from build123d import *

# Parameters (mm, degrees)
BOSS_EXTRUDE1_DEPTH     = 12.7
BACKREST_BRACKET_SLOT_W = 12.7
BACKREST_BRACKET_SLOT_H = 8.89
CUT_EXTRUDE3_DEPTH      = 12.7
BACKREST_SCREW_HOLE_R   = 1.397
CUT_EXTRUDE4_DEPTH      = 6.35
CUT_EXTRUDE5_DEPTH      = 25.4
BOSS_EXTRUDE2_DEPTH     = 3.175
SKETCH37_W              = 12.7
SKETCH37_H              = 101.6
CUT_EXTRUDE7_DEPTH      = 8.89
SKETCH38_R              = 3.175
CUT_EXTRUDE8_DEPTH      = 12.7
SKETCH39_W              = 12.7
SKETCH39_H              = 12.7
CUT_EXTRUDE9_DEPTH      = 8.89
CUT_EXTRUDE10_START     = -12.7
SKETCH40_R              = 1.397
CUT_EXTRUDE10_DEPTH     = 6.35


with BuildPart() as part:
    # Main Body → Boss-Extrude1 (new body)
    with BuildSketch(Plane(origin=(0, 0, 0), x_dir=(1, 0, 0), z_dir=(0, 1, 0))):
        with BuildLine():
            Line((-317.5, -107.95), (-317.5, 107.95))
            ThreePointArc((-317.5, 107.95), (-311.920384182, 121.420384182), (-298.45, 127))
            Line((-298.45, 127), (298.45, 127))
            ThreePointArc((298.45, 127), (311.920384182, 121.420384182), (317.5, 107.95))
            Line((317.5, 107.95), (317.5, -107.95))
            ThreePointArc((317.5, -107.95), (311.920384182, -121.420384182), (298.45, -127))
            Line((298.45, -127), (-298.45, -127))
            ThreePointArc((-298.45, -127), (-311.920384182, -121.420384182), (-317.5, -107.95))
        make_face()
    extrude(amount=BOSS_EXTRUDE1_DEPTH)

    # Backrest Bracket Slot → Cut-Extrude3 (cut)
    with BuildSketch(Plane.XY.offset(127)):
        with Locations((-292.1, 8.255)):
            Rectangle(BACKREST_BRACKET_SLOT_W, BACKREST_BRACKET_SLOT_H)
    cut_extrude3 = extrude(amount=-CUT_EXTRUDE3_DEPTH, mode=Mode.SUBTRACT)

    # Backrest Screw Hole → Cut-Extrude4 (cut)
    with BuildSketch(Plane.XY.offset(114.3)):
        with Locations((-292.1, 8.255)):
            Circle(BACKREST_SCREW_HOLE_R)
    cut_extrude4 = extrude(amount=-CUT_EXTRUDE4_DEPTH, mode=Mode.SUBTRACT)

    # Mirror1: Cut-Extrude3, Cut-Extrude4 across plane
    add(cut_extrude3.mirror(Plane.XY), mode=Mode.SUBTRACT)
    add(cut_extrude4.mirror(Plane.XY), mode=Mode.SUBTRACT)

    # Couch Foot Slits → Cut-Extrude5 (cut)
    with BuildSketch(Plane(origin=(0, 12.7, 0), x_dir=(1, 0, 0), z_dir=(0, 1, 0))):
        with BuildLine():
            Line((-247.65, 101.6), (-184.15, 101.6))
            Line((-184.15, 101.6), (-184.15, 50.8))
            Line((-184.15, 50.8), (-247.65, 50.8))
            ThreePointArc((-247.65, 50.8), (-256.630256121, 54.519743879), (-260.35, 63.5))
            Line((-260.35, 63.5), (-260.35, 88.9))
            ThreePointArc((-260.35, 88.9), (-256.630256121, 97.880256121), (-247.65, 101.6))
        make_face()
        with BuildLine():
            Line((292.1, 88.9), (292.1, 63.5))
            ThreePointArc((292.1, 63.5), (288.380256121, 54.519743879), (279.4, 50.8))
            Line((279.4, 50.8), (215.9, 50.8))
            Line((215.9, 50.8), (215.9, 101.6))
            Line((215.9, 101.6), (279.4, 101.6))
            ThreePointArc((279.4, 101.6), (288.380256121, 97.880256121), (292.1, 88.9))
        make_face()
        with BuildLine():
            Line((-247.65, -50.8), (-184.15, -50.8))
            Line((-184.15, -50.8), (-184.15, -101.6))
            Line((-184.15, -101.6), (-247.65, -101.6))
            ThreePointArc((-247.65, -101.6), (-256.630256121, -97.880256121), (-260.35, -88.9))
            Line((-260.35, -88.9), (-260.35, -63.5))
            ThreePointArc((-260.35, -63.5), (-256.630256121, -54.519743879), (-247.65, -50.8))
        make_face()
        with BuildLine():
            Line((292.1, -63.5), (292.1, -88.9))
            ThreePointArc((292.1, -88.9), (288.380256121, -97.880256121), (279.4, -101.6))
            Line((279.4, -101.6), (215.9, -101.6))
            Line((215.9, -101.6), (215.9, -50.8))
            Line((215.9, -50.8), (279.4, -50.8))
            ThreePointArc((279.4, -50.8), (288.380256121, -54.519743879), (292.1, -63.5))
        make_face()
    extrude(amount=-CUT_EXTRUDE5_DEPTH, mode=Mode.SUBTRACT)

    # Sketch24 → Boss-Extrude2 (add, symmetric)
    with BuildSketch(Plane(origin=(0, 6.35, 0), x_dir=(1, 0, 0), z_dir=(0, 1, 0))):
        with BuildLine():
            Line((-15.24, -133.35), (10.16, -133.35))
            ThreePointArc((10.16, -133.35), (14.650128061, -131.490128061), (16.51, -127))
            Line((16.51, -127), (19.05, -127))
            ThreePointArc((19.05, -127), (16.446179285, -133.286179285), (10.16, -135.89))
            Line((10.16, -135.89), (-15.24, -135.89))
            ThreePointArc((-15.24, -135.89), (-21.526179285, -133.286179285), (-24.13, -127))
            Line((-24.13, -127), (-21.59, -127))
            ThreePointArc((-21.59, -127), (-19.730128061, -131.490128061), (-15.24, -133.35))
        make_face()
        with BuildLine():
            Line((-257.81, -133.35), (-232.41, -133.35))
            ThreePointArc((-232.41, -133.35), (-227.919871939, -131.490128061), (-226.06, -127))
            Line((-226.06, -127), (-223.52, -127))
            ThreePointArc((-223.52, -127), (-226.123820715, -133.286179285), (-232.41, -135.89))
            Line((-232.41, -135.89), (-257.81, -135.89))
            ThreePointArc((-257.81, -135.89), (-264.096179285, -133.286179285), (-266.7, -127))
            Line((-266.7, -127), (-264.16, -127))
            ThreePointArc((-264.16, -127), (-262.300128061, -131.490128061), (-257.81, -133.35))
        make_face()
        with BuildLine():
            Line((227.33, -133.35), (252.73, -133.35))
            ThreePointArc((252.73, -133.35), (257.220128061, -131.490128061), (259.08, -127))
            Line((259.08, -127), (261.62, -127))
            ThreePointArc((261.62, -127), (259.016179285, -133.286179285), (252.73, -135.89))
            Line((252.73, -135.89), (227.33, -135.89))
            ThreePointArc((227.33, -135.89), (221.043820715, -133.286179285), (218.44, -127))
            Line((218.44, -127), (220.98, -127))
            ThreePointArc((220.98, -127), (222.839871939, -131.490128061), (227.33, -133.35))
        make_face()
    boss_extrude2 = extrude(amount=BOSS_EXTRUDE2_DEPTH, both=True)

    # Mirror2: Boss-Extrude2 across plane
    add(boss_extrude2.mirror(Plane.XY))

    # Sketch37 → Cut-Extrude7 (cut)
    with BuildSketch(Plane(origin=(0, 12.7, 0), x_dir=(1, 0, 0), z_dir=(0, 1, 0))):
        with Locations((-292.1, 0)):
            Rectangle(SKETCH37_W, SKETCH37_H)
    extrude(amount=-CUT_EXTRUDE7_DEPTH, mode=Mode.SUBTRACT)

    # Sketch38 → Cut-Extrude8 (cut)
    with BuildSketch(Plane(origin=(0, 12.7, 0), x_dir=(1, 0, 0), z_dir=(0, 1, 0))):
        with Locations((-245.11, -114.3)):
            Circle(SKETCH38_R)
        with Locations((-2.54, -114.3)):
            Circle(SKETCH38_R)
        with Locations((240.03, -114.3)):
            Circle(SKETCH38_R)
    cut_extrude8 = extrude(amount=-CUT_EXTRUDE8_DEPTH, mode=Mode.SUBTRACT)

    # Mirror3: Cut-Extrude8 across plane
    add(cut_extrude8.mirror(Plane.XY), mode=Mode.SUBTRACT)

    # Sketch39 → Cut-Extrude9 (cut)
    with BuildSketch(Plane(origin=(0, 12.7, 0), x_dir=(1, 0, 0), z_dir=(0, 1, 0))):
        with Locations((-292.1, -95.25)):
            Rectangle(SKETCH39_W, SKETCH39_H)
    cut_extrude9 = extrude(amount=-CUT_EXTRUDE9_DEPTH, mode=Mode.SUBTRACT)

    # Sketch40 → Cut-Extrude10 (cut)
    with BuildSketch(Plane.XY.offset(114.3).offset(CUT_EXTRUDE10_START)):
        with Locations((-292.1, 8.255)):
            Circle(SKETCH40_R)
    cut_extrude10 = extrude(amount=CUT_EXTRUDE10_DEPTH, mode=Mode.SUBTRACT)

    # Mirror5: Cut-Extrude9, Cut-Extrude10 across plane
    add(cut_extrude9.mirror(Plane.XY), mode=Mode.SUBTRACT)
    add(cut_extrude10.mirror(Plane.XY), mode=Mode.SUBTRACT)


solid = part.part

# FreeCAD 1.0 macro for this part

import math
import FreeCAD as App
import Part
import Sketcher
Q = App.Units.Quantity

doc = App.newDocument("Part")
body = doc.addObject("PartDesign::Body", "Body")

# Sketch on XZ plane
sketch1 = body.newObject("Sketcher::SketchObject", "Sketch")
sketch1.AttachmentSupport = (doc.getObject("XZ_Plane"), [""])
sketch1.MapMode = "FlatFace"
sketch1.addGeometry(Part.LineSegment(App.Vector(-318, -108, 0), App.Vector(-318, 108, 0)), False)
sketch1.addGeometry(Part.ArcOfCircle(Part.Circle(App.Vector(-298, 108, 0), App.Vector(0, 0, 1), 19), math.radians(90), math.radians(180)), False)
sketch1.addGeometry(Part.LineSegment(App.Vector(-298, 127, 0), App.Vector(298, 127, 0)), False)
sketch1.addGeometry(Part.ArcOfCircle(Part.Circle(App.Vector(298, 108, 0), App.Vector(0, 0, 1), 19), math.radians(0), math.radians(90)), False)
sketch1.addGeometry(Part.LineSegment(App.Vector(318, 108, 0), App.Vector(318, -108, 0)), False)
sketch1.addGeometry(Part.ArcOfCircle(Part.Circle(App.Vector(298, -108, 0), App.Vector(0, 0, 1), 19), math.radians(-90), math.radians(0)), False)
sketch1.addGeometry(Part.LineSegment(App.Vector(298, -127, 0), App.Vector(-298, -127, 0)), False)
sketch1.addGeometry(Part.ArcOfCircle(Part.Circle(App.Vector(-298, -108, 0), App.Vector(0, 0, 1), 19), math.radians(180), math.radians(270)), False)
sketch1.addConstraint(Sketcher.Constraint("Tangent", 0, 2, 1, 2))
sketch1.addConstraint(Sketcher.Constraint("Tangent", 1, 1, 2, 1))
sketch1.addConstraint(Sketcher.Constraint("Tangent", 2, 2, 3, 2))
sketch1.addConstraint(Sketcher.Constraint("Tangent", 3, 1, 4, 1))
sketch1.addConstraint(Sketcher.Constraint("Tangent", 4, 2, 5, 2))
sketch1.addConstraint(Sketcher.Constraint("Tangent", 5, 1, 6, 1))
sketch1.addConstraint(Sketcher.Constraint("Tangent", 6, 2, 7, 2))
sketch1.addConstraint(Sketcher.Constraint("Tangent", 7, 1, 0, 1))
sketch1.addConstraint(Sketcher.Constraint("Vertical", 0))
sketch1.addConstraint(Sketcher.Constraint("Horizontal", 2))
sketch1.addConstraint(Sketcher.Constraint("Vertical", 4))
sketch1.addConstraint(Sketcher.Constraint("Horizontal", 6))
sketch1.addConstraint(Sketcher.Constraint("Equal", 1, 3))
sketch1.addConstraint(Sketcher.Constraint("Equal", 3, 5))
sketch1.addConstraint(Sketcher.Constraint("Equal", 5, 7))
sketch1.addConstraint(Sketcher.Constraint("Symmetric", 1, 3, 5, 3, -1, 1))
sketch1.addConstraint(Sketcher.Constraint("Radius", 1, Q("0.75 in")))
sketch1.addConstraint(Sketcher.Constraint("DistanceX", 2, 1, 2, 2, Q("23.5 in")))
sketch1.addConstraint(Sketcher.Constraint("DistanceY", 0, 1, 0, 2, Q("8.5 in")))
pad1 = body.newObject("PartDesign::Pad", "Pad")
pad1.Profile = sketch1
pad1.Length = Q("0.5 in")
pad1.Reversed = True

# Sketch on XY plane
sketch2 = body.newObject("Sketcher::SketchObject", "Sketch001")
sketch2.AttachmentSupport = (doc.getObject("XY_Plane"), [""])
sketch2.MapMode = "FlatFace"
sketch2.AttachmentOffset = App.Placement(App.Vector(0, 0, 5 * 25.4), App.Rotation())
sketch2.addGeometry(Part.LineSegment(App.Vector(-298, 13, 0), App.Vector(-298, 4, 0)), False)
sketch2.addGeometry(Part.LineSegment(App.Vector(-298, 4, 0), App.Vector(-286, 4, 0)), False)
sketch2.addGeometry(Part.LineSegment(App.Vector(-286, 4, 0), App.Vector(-286, 13, 0)), False)
sketch2.addGeometry(Part.LineSegment(App.Vector(-286, 13, 0), App.Vector(-298, 13, 0)), False)
sketch2.addConstraint(Sketcher.Constraint("Coincident", 0, 2, 1, 1))
sketch2.addConstraint(Sketcher.Constraint("Coincident", 1, 2, 2, 1))
sketch2.addConstraint(Sketcher.Constraint("Coincident", 2, 2, 3, 1))
sketch2.addConstraint(Sketcher.Constraint("Coincident", 3, 2, 0, 1))
sketch2.addConstraint(Sketcher.Constraint("Vertical", 0))
sketch2.addConstraint(Sketcher.Constraint("Horizontal", 1))
sketch2.addConstraint(Sketcher.Constraint("Vertical", 2))
sketch2.addConstraint(Sketcher.Constraint("Horizontal", 3))
sketch2.addConstraint(Sketcher.Constraint("DistanceX", 1, 1, 1, 2, Q("0.5 in")))
sketch2.addConstraint(Sketcher.Constraint("DistanceY", 0, 2, 0, 1, Q("0.35 in")))
sketch2.addConstraint(Sketcher.Constraint("DistanceY", -1, 1, 2, 2, Q("0.5 in")))
sketch2.addConstraint(Sketcher.Constraint("DistanceX", 0, 2, -1, 1, Q("11.75 in")))
pocket1 = body.newObject("PartDesign::Pocket", "Pocket")
pocket1.Profile = sketch2
pocket1.Length = Q("0.5 in")

# Sketch on XY plane
sketch3 = body.newObject("Sketcher::SketchObject", "Sketch002")
sketch3.AttachmentSupport = (doc.getObject("XY_Plane"), [""])
sketch3.MapMode = "FlatFace"
sketch3.AttachmentOffset = App.Placement(App.Vector(0, 0, 4.5 * 25.4), App.Rotation())
sketch3.addGeometry(Part.Circle(App.Vector(-292.1, 8.3, 0), App.Vector(0, 0, 1), 1.4), False)
sketch3.addConstraint(Sketcher.Constraint("Diameter", 0, Q("0.11 in")))
sketch3.addConstraint(Sketcher.Constraint("DistanceX", 0, 3, -1, 1, Q("11.5 in")))
sketch3.addConstraint(Sketcher.Constraint("DistanceY", -1, 1, 0, 3, Q("0.325 in")))
pocket2 = body.newObject("PartDesign::Pocket", "Pocket001")
pocket2.Profile = sketch3
pocket2.Length = Q("0.25 in")
doc.recompute()

mirrored = body.newObject("PartDesign::Mirrored", "Mirrored")
mirrored.Originals = [pocket1, pocket2]
mirrored.MirrorPlane = (doc.getObject("XY_Plane"), [""])
body.Tip = mirrored

# Sketch on XZ plane
sketch4 = body.newObject("Sketcher::SketchObject", "Sketch003")
sketch4.AttachmentSupport = (doc.getObject("XZ_Plane"), [""])
sketch4.MapMode = "FlatFace"
sketch4.AttachmentOffset = App.Placement(App.Vector(0, 0, -0.5 * 25.4), App.Rotation())
sketch4.addGeometry(Part.LineSegment(App.Vector(-184, -102, 0), App.Vector(-248, -102, 0)), False)
sketch4.addGeometry(Part.ArcOfCircle(Part.Circle(App.Vector(-248, -89, 0), App.Vector(0, 0, 1), 13), math.radians(180), math.radians(270)), False)
sketch4.addGeometry(Part.LineSegment(App.Vector(-260, -89, 0), App.Vector(-260, -64, 0)), False)
sketch4.addGeometry(Part.ArcOfCircle(Part.Circle(App.Vector(-248, -64, 0), App.Vector(0, 0, 1), 13), math.radians(90), math.radians(180)), False)
sketch4.addGeometry(Part.LineSegment(App.Vector(-248, -51, 0), App.Vector(-184, -51, 0)), False)
sketch4.addGeometry(Part.LineSegment(App.Vector(-184, -51, 0), App.Vector(-184, -102, 0)), False)
sketch4.addGeometry(Part.LineSegment(App.Vector(292, -64, 0), App.Vector(292, -89, 0)), False)
sketch4.addGeometry(Part.ArcOfCircle(Part.Circle(App.Vector(279, -89, 0), App.Vector(0, 0, 1), 13), math.radians(-90), math.radians(0)), False)
sketch4.addGeometry(Part.LineSegment(App.Vector(279, -102, 0), App.Vector(216, -102, 0)), False)
sketch4.addGeometry(Part.LineSegment(App.Vector(216, -102, 0), App.Vector(216, -51, 0)), False)
sketch4.addGeometry(Part.LineSegment(App.Vector(216, -51, 0), App.Vector(279, -51, 0)), False)
sketch4.addGeometry(Part.ArcOfCircle(Part.Circle(App.Vector(279, -64, 0), App.Vector(0, 0, 1), 13), math.radians(0), math.radians(90)), False)
sketch4.addGeometry(Part.LineSegment(App.Vector(-184, 51, 0), App.Vector(-248, 51, 0)), False)
sketch4.addGeometry(Part.ArcOfCircle(Part.Circle(App.Vector(-248, 64, 0), App.Vector(0, 0, 1), 13), math.radians(180), math.radians(270)), False)
sketch4.addGeometry(Part.LineSegment(App.Vector(-260, 64, 0), App.Vector(-260, 89, 0)), False)
sketch4.addGeometry(Part.ArcOfCircle(Part.Circle(App.Vector(-248, 89, 0), App.Vector(0, 0, 1), 13), math.radians(90), math.radians(180)), False)
sketch4.addGeometry(Part.LineSegment(App.Vector(-248, 102, 0), App.Vector(-184, 102, 0)), False)
sketch4.addGeometry(Part.LineSegment(App.Vector(-184, 102, 0), App.Vector(-184, 51, 0)), False)
sketch4.addGeometry(Part.LineSegment(App.Vector(292, 89, 0), App.Vector(292, 64, 0)), False)
sketch4.addGeometry(Part.ArcOfCircle(Part.Circle(App.Vector(279, 64, 0), App.Vector(0, 0, 1), 13), math.radians(-90), math.radians(0)), False)
sketch4.addGeometry(Part.LineSegment(App.Vector(279, 51, 0), App.Vector(216, 51, 0)), False)
sketch4.addGeometry(Part.LineSegment(App.Vector(216, 51, 0), App.Vector(216, 102, 0)), False)
sketch4.addGeometry(Part.LineSegment(App.Vector(216, 102, 0), App.Vector(279, 102, 0)), False)
sketch4.addGeometry(Part.ArcOfCircle(Part.Circle(App.Vector(279, 89, 0), App.Vector(0, 0, 1), 13), math.radians(0), math.radians(90)), False)
sketch4.addConstraint(Sketcher.Constraint("Tangent", 0, 2, 1, 2))
sketch4.addConstraint(Sketcher.Constraint("Tangent", 1, 1, 2, 1))
sketch4.addConstraint(Sketcher.Constraint("Tangent", 2, 2, 3, 2))
sketch4.addConstraint(Sketcher.Constraint("Tangent", 3, 1, 4, 1))
sketch4.addConstraint(Sketcher.Constraint("Coincident", 4, 2, 5, 1))
sketch4.addConstraint(Sketcher.Constraint("Coincident", 5, 2, 0, 1))
sketch4.addConstraint(Sketcher.Constraint("Tangent", 6, 2, 7, 2))
sketch4.addConstraint(Sketcher.Constraint("Tangent", 7, 1, 8, 1))
sketch4.addConstraint(Sketcher.Constraint("Coincident", 8, 2, 9, 1))
sketch4.addConstraint(Sketcher.Constraint("Coincident", 9, 2, 10, 1))
sketch4.addConstraint(Sketcher.Constraint("Tangent", 10, 2, 11, 2))
sketch4.addConstraint(Sketcher.Constraint("Tangent", 11, 1, 6, 1))
sketch4.addConstraint(Sketcher.Constraint("Tangent", 12, 2, 13, 2))
sketch4.addConstraint(Sketcher.Constraint("Tangent", 13, 1, 14, 1))
sketch4.addConstraint(Sketcher.Constraint("Tangent", 14, 2, 15, 2))
sketch4.addConstraint(Sketcher.Constraint("Tangent", 15, 1, 16, 1))
sketch4.addConstraint(Sketcher.Constraint("Coincident", 16, 2, 17, 1))
sketch4.addConstraint(Sketcher.Constraint("Coincident", 17, 2, 12, 1))
sketch4.addConstraint(Sketcher.Constraint("Tangent", 18, 2, 19, 2))
sketch4.addConstraint(Sketcher.Constraint("Tangent", 19, 1, 20, 1))
sketch4.addConstraint(Sketcher.Constraint("Coincident", 20, 2, 21, 1))
sketch4.addConstraint(Sketcher.Constraint("Coincident", 21, 2, 22, 1))
sketch4.addConstraint(Sketcher.Constraint("Tangent", 22, 2, 23, 2))
sketch4.addConstraint(Sketcher.Constraint("Tangent", 23, 1, 18, 1))
sketch4.addConstraint(Sketcher.Constraint("Horizontal", 0))
sketch4.addConstraint(Sketcher.Constraint("Vertical", 2))
sketch4.addConstraint(Sketcher.Constraint("Horizontal", 4))
sketch4.addConstraint(Sketcher.Constraint("Vertical", 5))
sketch4.addConstraint(Sketcher.Constraint("Vertical", 6))
sketch4.addConstraint(Sketcher.Constraint("Horizontal", 8))
sketch4.addConstraint(Sketcher.Constraint("Vertical", 9))
sketch4.addConstraint(Sketcher.Constraint("Horizontal", 10))
sketch4.addConstraint(Sketcher.Constraint("Horizontal", 12))
sketch4.addConstraint(Sketcher.Constraint("Vertical", 14))
sketch4.addConstraint(Sketcher.Constraint("Horizontal", 16))
sketch4.addConstraint(Sketcher.Constraint("Vertical", 17))
sketch4.addConstraint(Sketcher.Constraint("Vertical", 18))
sketch4.addConstraint(Sketcher.Constraint("Horizontal", 20))
sketch4.addConstraint(Sketcher.Constraint("Vertical", 21))
sketch4.addConstraint(Sketcher.Constraint("Horizontal", 22))
sketch4.addConstraint(Sketcher.Constraint("Equal", 1, 3))
sketch4.addConstraint(Sketcher.Constraint("Equal", 3, 7))
sketch4.addConstraint(Sketcher.Constraint("Equal", 7, 11))
sketch4.addConstraint(Sketcher.Constraint("Equal", 11, 13))
sketch4.addConstraint(Sketcher.Constraint("Equal", 13, 15))
sketch4.addConstraint(Sketcher.Constraint("Equal", 15, 19))
sketch4.addConstraint(Sketcher.Constraint("Equal", 19, 23))
sketch4.addConstraint(Sketcher.Constraint("Symmetric", 3, 3, 13, 3, -1))
sketch4.addConstraint(Sketcher.Constraint("Symmetric", 11, 3, 19, 3, -1))
sketch4.addConstraint(Sketcher.Constraint("Symmetric", 5, 2, 16, 2, -1))
sketch4.addConstraint(Sketcher.Constraint("Symmetric", 8, 2, 21, 2, -1))
sketch4.addConstraint(Sketcher.Constraint("Horizontal", 1, 3, 7, 3))
sketch4.addConstraint(Sketcher.Constraint("Horizontal", 3, 3, 11, 3))
sketch4.addConstraint(Sketcher.Constraint("Equal", 4, 8))
sketch4.addConstraint(Sketcher.Constraint("Radius", 1, Q("0.5 in")))
sketch4.addConstraint(Sketcher.Constraint("DistanceY", 2, 1, 2, 2, Q("1 in")))
sketch4.addConstraint(Sketcher.Constraint("DistanceX", 0, 2, 0, 1, Q("2.5 in")))
sketch4.addConstraint(Sketcher.Constraint("DistanceX", -1, 1, 7, 3, Q("11 in")))
sketch4.addConstraint(Sketcher.Constraint("DistanceY", 0, 2, -1, 1, Q("4 in")))
sketch4.addConstraint(Sketcher.Constraint("DistanceX", 1, 3, -1, 1, Q("9.75 in")))
pocket3 = body.newObject("PartDesign::Pocket", "Pocket002")
pocket3.Profile = sketch4
pocket3.Length = Q("1 in")
pocket3.Reversed = True

# Sketch on XZ plane
sketch5 = body.newObject("Sketcher::SketchObject", "Sketch004")
sketch5.AttachmentSupport = (doc.getObject("XZ_Plane"), [""])
sketch5.MapMode = "FlatFace"
sketch5.AttachmentOffset = App.Placement(App.Vector(0, 0, -0.25 * 25.4), App.Rotation())
sketch5.addGeometry(Part.LineSegment(App.Vector(10.2, 133.3, 0), App.Vector(-15.2, 133.3, 0)), False)
sketch5.addGeometry(Part.ArcOfCircle(Part.Circle(App.Vector(-15.2, 127, 0), App.Vector(0, 0, 1), 6.3), math.radians(90), math.radians(180)), False)
sketch5.addGeometry(Part.LineSegment(App.Vector(-21.6, 127, 0), App.Vector(-24.1, 127, 0)), False)
sketch5.addGeometry(Part.ArcOfCircle(Part.Circle(App.Vector(-15.2, 127, 0), App.Vector(0, 0, 1), 8.9), math.radians(90), math.radians(180)), False)
sketch5.addGeometry(Part.LineSegment(App.Vector(-15.2, 135.9, 0), App.Vector(10.2, 135.9, 0)), False)
sketch5.addGeometry(Part.ArcOfCircle(Part.Circle(App.Vector(10.2, 127, 0), App.Vector(0, 0, 1), 8.9), math.radians(0), math.radians(90)), False)
sketch5.addGeometry(Part.LineSegment(App.Vector(19.1, 127, 0), App.Vector(16.5, 127, 0)), False)
sketch5.addGeometry(Part.ArcOfCircle(Part.Circle(App.Vector(10.2, 127, 0), App.Vector(0, 0, 1), 6.3), math.radians(0), math.radians(90)), False)
sketch5.addGeometry(Part.LineSegment(App.Vector(-232.4, 133.3, 0), App.Vector(-257.8, 133.3, 0)), False)
sketch5.addGeometry(Part.ArcOfCircle(Part.Circle(App.Vector(-257.8, 127, 0), App.Vector(0, 0, 1), 6.3), math.radians(90), math.radians(180)), False)
sketch5.addGeometry(Part.LineSegment(App.Vector(-264.2, 127, 0), App.Vector(-266.7, 127, 0)), False)
sketch5.addGeometry(Part.ArcOfCircle(Part.Circle(App.Vector(-257.8, 127, 0), App.Vector(0, 0, 1), 8.9), math.radians(90), math.radians(180)), False)
sketch5.addGeometry(Part.LineSegment(App.Vector(-257.8, 135.9, 0), App.Vector(-232.4, 135.9, 0)), False)
sketch5.addGeometry(Part.ArcOfCircle(Part.Circle(App.Vector(-232.4, 127, 0), App.Vector(0, 0, 1), 8.9), math.radians(0), math.radians(90)), False)
sketch5.addGeometry(Part.LineSegment(App.Vector(-223.5, 127, 0), App.Vector(-226.1, 127, 0)), False)
sketch5.addGeometry(Part.ArcOfCircle(Part.Circle(App.Vector(-232.4, 127, 0), App.Vector(0, 0, 1), 6.3), math.radians(0), math.radians(90)), False)
sketch5.addGeometry(Part.LineSegment(App.Vector(252.7, 133.3, 0), App.Vector(227.3, 133.3, 0)), False)
sketch5.addGeometry(Part.ArcOfCircle(Part.Circle(App.Vector(227.3, 127, 0), App.Vector(0, 0, 1), 6.3), math.radians(90), math.radians(180)), False)
sketch5.addGeometry(Part.LineSegment(App.Vector(221, 127, 0), App.Vector(218.4, 127, 0)), False)
sketch5.addGeometry(Part.ArcOfCircle(Part.Circle(App.Vector(227.3, 127, 0), App.Vector(0, 0, 1), 8.9), math.radians(90), math.radians(180)), False)
sketch5.addGeometry(Part.LineSegment(App.Vector(227.3, 135.9, 0), App.Vector(252.7, 135.9, 0)), False)
sketch5.addGeometry(Part.ArcOfCircle(Part.Circle(App.Vector(252.7, 127, 0), App.Vector(0, 0, 1), 8.9), math.radians(0), math.radians(90)), False)
sketch5.addGeometry(Part.LineSegment(App.Vector(261.6, 127, 0), App.Vector(259.1, 127, 0)), False)
sketch5.addGeometry(Part.ArcOfCircle(Part.Circle(App.Vector(252.7, 127, 0), App.Vector(0, 0, 1), 6.3), math.radians(0), math.radians(90)), False)
sketch5.addConstraint(Sketcher.Constraint("Tangent", 0, 2, 1, 1))
sketch5.addConstraint(Sketcher.Constraint("Coincident", 1, 2, 2, 1))
sketch5.addConstraint(Sketcher.Constraint("Coincident", 2, 2, 3, 2))
sketch5.addConstraint(Sketcher.Constraint("Tangent", 3, 1, 4, 1))
sketch5.addConstraint(Sketcher.Constraint("Tangent", 4, 2, 5, 2))
sketch5.addConstraint(Sketcher.Constraint("Coincident", 5, 1, 6, 1))
sketch5.addConstraint(Sketcher.Constraint("Coincident", 6, 2, 7, 1))
sketch5.addConstraint(Sketcher.Constraint("Tangent", 7, 2, 0, 1))
sketch5.addConstraint(Sketcher.Constraint("Tangent", 8, 2, 9, 1))
sketch5.addConstraint(Sketcher.Constraint("Coincident", 9, 2, 10, 1))
sketch5.addConstraint(Sketcher.Constraint("Coincident", 10, 2, 11, 2))
sketch5.addConstraint(Sketcher.Constraint("Tangent", 11, 1, 12, 1))
sketch5.addConstraint(Sketcher.Constraint("Tangent", 12, 2, 13, 2))
sketch5.addConstraint(Sketcher.Constraint("Coincident", 13, 1, 14, 1))
sketch5.addConstraint(Sketcher.Constraint("Coincident", 14, 2, 15, 1))
sketch5.addConstraint(Sketcher.Constraint("Tangent", 15, 2, 8, 1))
sketch5.addConstraint(Sketcher.Constraint("Tangent", 16, 2, 17, 1))
sketch5.addConstraint(Sketcher.Constraint("Coincident", 17, 2, 18, 1))
sketch5.addConstraint(Sketcher.Constraint("Coincident", 18, 2, 19, 2))
sketch5.addConstraint(Sketcher.Constraint("Tangent", 19, 1, 20, 1))
sketch5.addConstraint(Sketcher.Constraint("Tangent", 20, 2, 21, 2))
sketch5.addConstraint(Sketcher.Constraint("Coincident", 21, 1, 22, 1))
sketch5.addConstraint(Sketcher.Constraint("Coincident", 22, 2, 23, 1))
sketch5.addConstraint(Sketcher.Constraint("Tangent", 23, 2, 16, 1))
sketch5.addConstraint(Sketcher.Constraint("Horizontal", 0))
sketch5.addConstraint(Sketcher.Constraint("Horizontal", 2))
sketch5.addConstraint(Sketcher.Constraint("Horizontal", 4))
sketch5.addConstraint(Sketcher.Constraint("Horizontal", 6))
sketch5.addConstraint(Sketcher.Constraint("Horizontal", 8))
sketch5.addConstraint(Sketcher.Constraint("Horizontal", 10))
sketch5.addConstraint(Sketcher.Constraint("Horizontal", 12))
sketch5.addConstraint(Sketcher.Constraint("Horizontal", 14))
sketch5.addConstraint(Sketcher.Constraint("Horizontal", 16))
sketch5.addConstraint(Sketcher.Constraint("Horizontal", 18))
sketch5.addConstraint(Sketcher.Constraint("Horizontal", 20))
sketch5.addConstraint(Sketcher.Constraint("Horizontal", 22))
sketch5.addConstraint(Sketcher.Constraint("Coincident", 3, 3, 1, 3))
sketch5.addConstraint(Sketcher.Constraint("Coincident", 7, 3, 5, 3))
sketch5.addConstraint(Sketcher.Constraint("Coincident", 11, 3, 9, 3))
sketch5.addConstraint(Sketcher.Constraint("Coincident", 15, 3, 13, 3))
sketch5.addConstraint(Sketcher.Constraint("Coincident", 19, 3, 17, 3))
sketch5.addConstraint(Sketcher.Constraint("Coincident", 23, 3, 21, 3))
sketch5.addConstraint(Sketcher.Constraint("Equal", 3, 5))
sketch5.addConstraint(Sketcher.Constraint("Equal", 7, 9))
sketch5.addConstraint(Sketcher.Constraint("Equal", 5, 11))
sketch5.addConstraint(Sketcher.Constraint("Equal", 11, 13))
sketch5.addConstraint(Sketcher.Constraint("Equal", 15, 17))
sketch5.addConstraint(Sketcher.Constraint("Equal", 13, 19))
sketch5.addConstraint(Sketcher.Constraint("Equal", 19, 21))
sketch5.addConstraint(Sketcher.Constraint("Horizontal", 7, 3, 9, 3))
sketch5.addConstraint(Sketcher.Constraint("Horizontal", 15, 3, 17, 3))
sketch5.addConstraint(Sketcher.Constraint("Horizontal", 23, 3, 1, 2))
sketch5.addConstraint(Sketcher.Constraint("Horizontal", 2, 2, 5, 1))
sketch5.addConstraint(Sketcher.Constraint("Horizontal", 6, 2, 9, 2))
sketch5.addConstraint(Sketcher.Constraint("Horizontal", 10, 2, 13, 1))
sketch5.addConstraint(Sketcher.Constraint("Horizontal", 14, 2, 17, 2))
sketch5.addConstraint(Sketcher.Constraint("Horizontal", 18, 2, 21, 1))
sketch5.addConstraint(Sketcher.Constraint("Equal", 4, 8))
sketch5.addConstraint(Sketcher.Constraint("Equal", 12, 16))
sketch5.addConstraint(Sketcher.Constraint("DistanceX", 0, 2, 0, 1, Q("1 in")))
sketch5.addConstraint(Sketcher.Constraint("Radius", 1, Q("0.25 in")))
sketch5.addConstraint(Sketcher.Constraint("Radius", 3, Q("0.35 in")))
sketch5.addConstraint(Sketcher.Constraint("DistanceY", -1, 1, 1, 3, Q("5 in")))
sketch5.addConstraint(Sketcher.Constraint("DistanceX", 1, 3, -1, 1, Q("0.6 in")))
sketch5.addConstraint(Sketcher.Constraint("DistanceX", 9, 2, -1, 1, Q("10.4 in")))
sketch5.addConstraint(Sketcher.Constraint("DistanceX", -1, 1, 17, 2, Q("8.7 in")))
pad2 = body.newObject("PartDesign::Pad", "Pad001")
pad2.Profile = sketch5
pad2.Length = Q("0.25 in")
pad2.Midplane = True
doc.recompute()

mirrored2 = body.newObject("PartDesign::Mirrored", "Mirrored001")
mirrored2.Originals = [pad2]
mirrored2.MirrorPlane = (doc.getObject("XY_Plane"), [""])
body.Tip = mirrored2

# Sketch on XZ plane
sketch6 = body.newObject("Sketcher::SketchObject", "Sketch005")
sketch6.AttachmentSupport = (doc.getObject("XZ_Plane"), [""])
sketch6.MapMode = "FlatFace"
sketch6.AttachmentOffset = App.Placement(App.Vector(0, 0, -0.5 * 25.4), App.Rotation())
sketch6.addGeometry(Part.LineSegment(App.Vector(-298, -51, 0), App.Vector(-298, 51, 0)), False)
sketch6.addGeometry(Part.LineSegment(App.Vector(-298, 51, 0), App.Vector(-286, 51, 0)), False)
sketch6.addGeometry(Part.LineSegment(App.Vector(-286, 51, 0), App.Vector(-286, -51, 0)), False)
sketch6.addGeometry(Part.LineSegment(App.Vector(-286, -51, 0), App.Vector(-298, -51, 0)), False)
sketch6.addConstraint(Sketcher.Constraint("Coincident", 0, 2, 1, 1))
sketch6.addConstraint(Sketcher.Constraint("Coincident", 1, 2, 2, 1))
sketch6.addConstraint(Sketcher.Constraint("Coincident", 2, 2, 3, 1))
sketch6.addConstraint(Sketcher.Constraint("Coincident", 3, 2, 0, 1))
sketch6.addConstraint(Sketcher.Constraint("Vertical", 0))
sketch6.addConstraint(Sketcher.Constraint("Horizontal", 1))
sketch6.addConstraint(Sketcher.Constraint("Vertical", 2))
sketch6.addConstraint(Sketcher.Constraint("Horizontal", 3))
sketch6.addConstraint(Sketcher.Constraint("DistanceY", 0, 1, 0, 2, Q("4 in")))
sketch6.addConstraint(Sketcher.Constraint("DistanceX", 1, 1, 1, 2, Q("0.5 in")))
sketch6.addConstraint(Sketcher.Constraint("DistanceY", -1, 1, 0, 2, Q("2 in")))
sketch6.addConstraint(Sketcher.Constraint("DistanceX", 0, 2, -1, 1, Q("11.75 in")))
pocket4 = body.newObject("PartDesign::Pocket", "Pocket003")
pocket4.Profile = sketch6
pocket4.Length = Q("0.35 in")
pocket4.Reversed = True

# Sketch on XZ plane
sketch7 = body.newObject("Sketcher::SketchObject", "Sketch006")
sketch7.AttachmentSupport = (doc.getObject("XZ_Plane"), [""])
sketch7.MapMode = "FlatFace"
sketch7.AttachmentOffset = App.Placement(App.Vector(0, 0, -0.5 * 25.4), App.Rotation())
sketch7.addGeometry(Part.Circle(App.Vector(-245.1, 114.3, 0), App.Vector(0, 0, 1), 3.2), False)
sketch7.addGeometry(Part.Circle(App.Vector(-2.5, 114.3, 0), App.Vector(0, 0, 1), 3.2), False)
sketch7.addGeometry(Part.Circle(App.Vector(240, 114.3, 0), App.Vector(0, 0, 1), 3.2), False)
sketch7.addConstraint(Sketcher.Constraint("Equal", 0, 1))
sketch7.addConstraint(Sketcher.Constraint("Equal", 1, 2))
sketch7.addConstraint(Sketcher.Constraint("Horizontal", 0, 3, 1, 3))
sketch7.addConstraint(Sketcher.Constraint("Horizontal", 1, 3, 2, 3))
sketch7.addConstraint(Sketcher.Constraint("Diameter", 0, Q("0.25 in")))
sketch7.addConstraint(Sketcher.Constraint("DistanceY", -1, 1, 0, 3, Q("4.5 in")))
sketch7.addConstraint(Sketcher.Constraint("DistanceX", 1, 3, -1, 1, Q("0.1 in")))
sketch7.addConstraint(Sketcher.Constraint("DistanceX", 0, 3, 2, 3, Q("19.1 in")))
sketch7.addConstraint(Sketcher.Constraint("DistanceX", 0, 3, -1, 1, Q("9.65 in")))
pocket5 = body.newObject("PartDesign::Pocket", "Pocket004")
pocket5.Profile = sketch7
pocket5.Length = Q("0.5 in")
pocket5.Reversed = True
doc.recompute()

mirrored3 = body.newObject("PartDesign::Mirrored", "Mirrored002")
mirrored3.Originals = [pocket5]
mirrored3.MirrorPlane = (doc.getObject("XY_Plane"), [""])
body.Tip = mirrored3

# Sketch on XZ plane
sketch8 = body.newObject("Sketcher::SketchObject", "Sketch007")
sketch8.AttachmentSupport = (doc.getObject("XZ_Plane"), [""])
sketch8.MapMode = "FlatFace"
sketch8.AttachmentOffset = App.Placement(App.Vector(0, 0, -0.5 * 25.4), App.Rotation())
sketch8.addGeometry(Part.LineSegment(App.Vector(-298, 89, 0), App.Vector(-298, 102, 0)), False)
sketch8.addGeometry(Part.LineSegment(App.Vector(-298, 102, 0), App.Vector(-286, 102, 0)), False)
sketch8.addGeometry(Part.LineSegment(App.Vector(-286, 102, 0), App.Vector(-286, 89, 0)), False)
sketch8.addGeometry(Part.LineSegment(App.Vector(-286, 89, 0), App.Vector(-298, 89, 0)), False)
sketch8.addConstraint(Sketcher.Constraint("Coincident", 0, 2, 1, 1))
sketch8.addConstraint(Sketcher.Constraint("Coincident", 1, 2, 2, 1))
sketch8.addConstraint(Sketcher.Constraint("Coincident", 2, 2, 3, 1))
sketch8.addConstraint(Sketcher.Constraint("Coincident", 3, 2, 0, 1))
sketch8.addConstraint(Sketcher.Constraint("Vertical", 0))
sketch8.addConstraint(Sketcher.Constraint("Horizontal", 1))
sketch8.addConstraint(Sketcher.Constraint("Vertical", 2))
sketch8.addConstraint(Sketcher.Constraint("Horizontal", 3))
sketch8.addConstraint(Sketcher.Constraint("Equal", 3, 0))
sketch8.addConstraint(Sketcher.Constraint("DistanceX", 1, 1, 1, 2, Q("0.5 in")))
sketch8.addConstraint(Sketcher.Constraint("DistanceY", -1, 1, 0, 2, Q("4 in")))
sketch8.addConstraint(Sketcher.Constraint("DistanceX", 0, 2, -1, 1, Q("11.75 in")))
pocket6 = body.newObject("PartDesign::Pocket", "Pocket005")
pocket6.Profile = sketch8
pocket6.Length = Q("0.35 in")
pocket6.Reversed = True

# Sketch on XY plane
sketch9 = body.newObject("Sketcher::SketchObject", "Sketch008")
sketch9.AttachmentSupport = (doc.getObject("XY_Plane"), [""])
sketch9.MapMode = "FlatFace"
sketch9.AttachmentOffset = App.Placement(App.Vector(0, 0, 4 * 25.4), App.Rotation())
sketch9.addGeometry(Part.Circle(App.Vector(-292.1, 8.3, 0), App.Vector(0, 0, 1), 1.4), False)
sketch9.addConstraint(Sketcher.Constraint("Diameter", 0, Q("0.11 in")))
sketch9.addConstraint(Sketcher.Constraint("DistanceX", 0, 3, -1, 1, Q("11.5 in")))
sketch9.addConstraint(Sketcher.Constraint("DistanceY", -1, 1, 0, 3, Q("0.325 in")))
pocket7 = body.newObject("PartDesign::Pocket", "Pocket006")
pocket7.Profile = sketch9
pocket7.Length = Q("0.25 in")
pocket7.Reversed = True
doc.recompute()

mirrored4 = body.newObject("PartDesign::Mirrored", "Mirrored003")
mirrored4.Originals = [pocket6, pocket7]
mirrored4.MirrorPlane = (doc.getObject("XY_Plane"), [""])
body.Tip = mirrored4

doc.recompute()
